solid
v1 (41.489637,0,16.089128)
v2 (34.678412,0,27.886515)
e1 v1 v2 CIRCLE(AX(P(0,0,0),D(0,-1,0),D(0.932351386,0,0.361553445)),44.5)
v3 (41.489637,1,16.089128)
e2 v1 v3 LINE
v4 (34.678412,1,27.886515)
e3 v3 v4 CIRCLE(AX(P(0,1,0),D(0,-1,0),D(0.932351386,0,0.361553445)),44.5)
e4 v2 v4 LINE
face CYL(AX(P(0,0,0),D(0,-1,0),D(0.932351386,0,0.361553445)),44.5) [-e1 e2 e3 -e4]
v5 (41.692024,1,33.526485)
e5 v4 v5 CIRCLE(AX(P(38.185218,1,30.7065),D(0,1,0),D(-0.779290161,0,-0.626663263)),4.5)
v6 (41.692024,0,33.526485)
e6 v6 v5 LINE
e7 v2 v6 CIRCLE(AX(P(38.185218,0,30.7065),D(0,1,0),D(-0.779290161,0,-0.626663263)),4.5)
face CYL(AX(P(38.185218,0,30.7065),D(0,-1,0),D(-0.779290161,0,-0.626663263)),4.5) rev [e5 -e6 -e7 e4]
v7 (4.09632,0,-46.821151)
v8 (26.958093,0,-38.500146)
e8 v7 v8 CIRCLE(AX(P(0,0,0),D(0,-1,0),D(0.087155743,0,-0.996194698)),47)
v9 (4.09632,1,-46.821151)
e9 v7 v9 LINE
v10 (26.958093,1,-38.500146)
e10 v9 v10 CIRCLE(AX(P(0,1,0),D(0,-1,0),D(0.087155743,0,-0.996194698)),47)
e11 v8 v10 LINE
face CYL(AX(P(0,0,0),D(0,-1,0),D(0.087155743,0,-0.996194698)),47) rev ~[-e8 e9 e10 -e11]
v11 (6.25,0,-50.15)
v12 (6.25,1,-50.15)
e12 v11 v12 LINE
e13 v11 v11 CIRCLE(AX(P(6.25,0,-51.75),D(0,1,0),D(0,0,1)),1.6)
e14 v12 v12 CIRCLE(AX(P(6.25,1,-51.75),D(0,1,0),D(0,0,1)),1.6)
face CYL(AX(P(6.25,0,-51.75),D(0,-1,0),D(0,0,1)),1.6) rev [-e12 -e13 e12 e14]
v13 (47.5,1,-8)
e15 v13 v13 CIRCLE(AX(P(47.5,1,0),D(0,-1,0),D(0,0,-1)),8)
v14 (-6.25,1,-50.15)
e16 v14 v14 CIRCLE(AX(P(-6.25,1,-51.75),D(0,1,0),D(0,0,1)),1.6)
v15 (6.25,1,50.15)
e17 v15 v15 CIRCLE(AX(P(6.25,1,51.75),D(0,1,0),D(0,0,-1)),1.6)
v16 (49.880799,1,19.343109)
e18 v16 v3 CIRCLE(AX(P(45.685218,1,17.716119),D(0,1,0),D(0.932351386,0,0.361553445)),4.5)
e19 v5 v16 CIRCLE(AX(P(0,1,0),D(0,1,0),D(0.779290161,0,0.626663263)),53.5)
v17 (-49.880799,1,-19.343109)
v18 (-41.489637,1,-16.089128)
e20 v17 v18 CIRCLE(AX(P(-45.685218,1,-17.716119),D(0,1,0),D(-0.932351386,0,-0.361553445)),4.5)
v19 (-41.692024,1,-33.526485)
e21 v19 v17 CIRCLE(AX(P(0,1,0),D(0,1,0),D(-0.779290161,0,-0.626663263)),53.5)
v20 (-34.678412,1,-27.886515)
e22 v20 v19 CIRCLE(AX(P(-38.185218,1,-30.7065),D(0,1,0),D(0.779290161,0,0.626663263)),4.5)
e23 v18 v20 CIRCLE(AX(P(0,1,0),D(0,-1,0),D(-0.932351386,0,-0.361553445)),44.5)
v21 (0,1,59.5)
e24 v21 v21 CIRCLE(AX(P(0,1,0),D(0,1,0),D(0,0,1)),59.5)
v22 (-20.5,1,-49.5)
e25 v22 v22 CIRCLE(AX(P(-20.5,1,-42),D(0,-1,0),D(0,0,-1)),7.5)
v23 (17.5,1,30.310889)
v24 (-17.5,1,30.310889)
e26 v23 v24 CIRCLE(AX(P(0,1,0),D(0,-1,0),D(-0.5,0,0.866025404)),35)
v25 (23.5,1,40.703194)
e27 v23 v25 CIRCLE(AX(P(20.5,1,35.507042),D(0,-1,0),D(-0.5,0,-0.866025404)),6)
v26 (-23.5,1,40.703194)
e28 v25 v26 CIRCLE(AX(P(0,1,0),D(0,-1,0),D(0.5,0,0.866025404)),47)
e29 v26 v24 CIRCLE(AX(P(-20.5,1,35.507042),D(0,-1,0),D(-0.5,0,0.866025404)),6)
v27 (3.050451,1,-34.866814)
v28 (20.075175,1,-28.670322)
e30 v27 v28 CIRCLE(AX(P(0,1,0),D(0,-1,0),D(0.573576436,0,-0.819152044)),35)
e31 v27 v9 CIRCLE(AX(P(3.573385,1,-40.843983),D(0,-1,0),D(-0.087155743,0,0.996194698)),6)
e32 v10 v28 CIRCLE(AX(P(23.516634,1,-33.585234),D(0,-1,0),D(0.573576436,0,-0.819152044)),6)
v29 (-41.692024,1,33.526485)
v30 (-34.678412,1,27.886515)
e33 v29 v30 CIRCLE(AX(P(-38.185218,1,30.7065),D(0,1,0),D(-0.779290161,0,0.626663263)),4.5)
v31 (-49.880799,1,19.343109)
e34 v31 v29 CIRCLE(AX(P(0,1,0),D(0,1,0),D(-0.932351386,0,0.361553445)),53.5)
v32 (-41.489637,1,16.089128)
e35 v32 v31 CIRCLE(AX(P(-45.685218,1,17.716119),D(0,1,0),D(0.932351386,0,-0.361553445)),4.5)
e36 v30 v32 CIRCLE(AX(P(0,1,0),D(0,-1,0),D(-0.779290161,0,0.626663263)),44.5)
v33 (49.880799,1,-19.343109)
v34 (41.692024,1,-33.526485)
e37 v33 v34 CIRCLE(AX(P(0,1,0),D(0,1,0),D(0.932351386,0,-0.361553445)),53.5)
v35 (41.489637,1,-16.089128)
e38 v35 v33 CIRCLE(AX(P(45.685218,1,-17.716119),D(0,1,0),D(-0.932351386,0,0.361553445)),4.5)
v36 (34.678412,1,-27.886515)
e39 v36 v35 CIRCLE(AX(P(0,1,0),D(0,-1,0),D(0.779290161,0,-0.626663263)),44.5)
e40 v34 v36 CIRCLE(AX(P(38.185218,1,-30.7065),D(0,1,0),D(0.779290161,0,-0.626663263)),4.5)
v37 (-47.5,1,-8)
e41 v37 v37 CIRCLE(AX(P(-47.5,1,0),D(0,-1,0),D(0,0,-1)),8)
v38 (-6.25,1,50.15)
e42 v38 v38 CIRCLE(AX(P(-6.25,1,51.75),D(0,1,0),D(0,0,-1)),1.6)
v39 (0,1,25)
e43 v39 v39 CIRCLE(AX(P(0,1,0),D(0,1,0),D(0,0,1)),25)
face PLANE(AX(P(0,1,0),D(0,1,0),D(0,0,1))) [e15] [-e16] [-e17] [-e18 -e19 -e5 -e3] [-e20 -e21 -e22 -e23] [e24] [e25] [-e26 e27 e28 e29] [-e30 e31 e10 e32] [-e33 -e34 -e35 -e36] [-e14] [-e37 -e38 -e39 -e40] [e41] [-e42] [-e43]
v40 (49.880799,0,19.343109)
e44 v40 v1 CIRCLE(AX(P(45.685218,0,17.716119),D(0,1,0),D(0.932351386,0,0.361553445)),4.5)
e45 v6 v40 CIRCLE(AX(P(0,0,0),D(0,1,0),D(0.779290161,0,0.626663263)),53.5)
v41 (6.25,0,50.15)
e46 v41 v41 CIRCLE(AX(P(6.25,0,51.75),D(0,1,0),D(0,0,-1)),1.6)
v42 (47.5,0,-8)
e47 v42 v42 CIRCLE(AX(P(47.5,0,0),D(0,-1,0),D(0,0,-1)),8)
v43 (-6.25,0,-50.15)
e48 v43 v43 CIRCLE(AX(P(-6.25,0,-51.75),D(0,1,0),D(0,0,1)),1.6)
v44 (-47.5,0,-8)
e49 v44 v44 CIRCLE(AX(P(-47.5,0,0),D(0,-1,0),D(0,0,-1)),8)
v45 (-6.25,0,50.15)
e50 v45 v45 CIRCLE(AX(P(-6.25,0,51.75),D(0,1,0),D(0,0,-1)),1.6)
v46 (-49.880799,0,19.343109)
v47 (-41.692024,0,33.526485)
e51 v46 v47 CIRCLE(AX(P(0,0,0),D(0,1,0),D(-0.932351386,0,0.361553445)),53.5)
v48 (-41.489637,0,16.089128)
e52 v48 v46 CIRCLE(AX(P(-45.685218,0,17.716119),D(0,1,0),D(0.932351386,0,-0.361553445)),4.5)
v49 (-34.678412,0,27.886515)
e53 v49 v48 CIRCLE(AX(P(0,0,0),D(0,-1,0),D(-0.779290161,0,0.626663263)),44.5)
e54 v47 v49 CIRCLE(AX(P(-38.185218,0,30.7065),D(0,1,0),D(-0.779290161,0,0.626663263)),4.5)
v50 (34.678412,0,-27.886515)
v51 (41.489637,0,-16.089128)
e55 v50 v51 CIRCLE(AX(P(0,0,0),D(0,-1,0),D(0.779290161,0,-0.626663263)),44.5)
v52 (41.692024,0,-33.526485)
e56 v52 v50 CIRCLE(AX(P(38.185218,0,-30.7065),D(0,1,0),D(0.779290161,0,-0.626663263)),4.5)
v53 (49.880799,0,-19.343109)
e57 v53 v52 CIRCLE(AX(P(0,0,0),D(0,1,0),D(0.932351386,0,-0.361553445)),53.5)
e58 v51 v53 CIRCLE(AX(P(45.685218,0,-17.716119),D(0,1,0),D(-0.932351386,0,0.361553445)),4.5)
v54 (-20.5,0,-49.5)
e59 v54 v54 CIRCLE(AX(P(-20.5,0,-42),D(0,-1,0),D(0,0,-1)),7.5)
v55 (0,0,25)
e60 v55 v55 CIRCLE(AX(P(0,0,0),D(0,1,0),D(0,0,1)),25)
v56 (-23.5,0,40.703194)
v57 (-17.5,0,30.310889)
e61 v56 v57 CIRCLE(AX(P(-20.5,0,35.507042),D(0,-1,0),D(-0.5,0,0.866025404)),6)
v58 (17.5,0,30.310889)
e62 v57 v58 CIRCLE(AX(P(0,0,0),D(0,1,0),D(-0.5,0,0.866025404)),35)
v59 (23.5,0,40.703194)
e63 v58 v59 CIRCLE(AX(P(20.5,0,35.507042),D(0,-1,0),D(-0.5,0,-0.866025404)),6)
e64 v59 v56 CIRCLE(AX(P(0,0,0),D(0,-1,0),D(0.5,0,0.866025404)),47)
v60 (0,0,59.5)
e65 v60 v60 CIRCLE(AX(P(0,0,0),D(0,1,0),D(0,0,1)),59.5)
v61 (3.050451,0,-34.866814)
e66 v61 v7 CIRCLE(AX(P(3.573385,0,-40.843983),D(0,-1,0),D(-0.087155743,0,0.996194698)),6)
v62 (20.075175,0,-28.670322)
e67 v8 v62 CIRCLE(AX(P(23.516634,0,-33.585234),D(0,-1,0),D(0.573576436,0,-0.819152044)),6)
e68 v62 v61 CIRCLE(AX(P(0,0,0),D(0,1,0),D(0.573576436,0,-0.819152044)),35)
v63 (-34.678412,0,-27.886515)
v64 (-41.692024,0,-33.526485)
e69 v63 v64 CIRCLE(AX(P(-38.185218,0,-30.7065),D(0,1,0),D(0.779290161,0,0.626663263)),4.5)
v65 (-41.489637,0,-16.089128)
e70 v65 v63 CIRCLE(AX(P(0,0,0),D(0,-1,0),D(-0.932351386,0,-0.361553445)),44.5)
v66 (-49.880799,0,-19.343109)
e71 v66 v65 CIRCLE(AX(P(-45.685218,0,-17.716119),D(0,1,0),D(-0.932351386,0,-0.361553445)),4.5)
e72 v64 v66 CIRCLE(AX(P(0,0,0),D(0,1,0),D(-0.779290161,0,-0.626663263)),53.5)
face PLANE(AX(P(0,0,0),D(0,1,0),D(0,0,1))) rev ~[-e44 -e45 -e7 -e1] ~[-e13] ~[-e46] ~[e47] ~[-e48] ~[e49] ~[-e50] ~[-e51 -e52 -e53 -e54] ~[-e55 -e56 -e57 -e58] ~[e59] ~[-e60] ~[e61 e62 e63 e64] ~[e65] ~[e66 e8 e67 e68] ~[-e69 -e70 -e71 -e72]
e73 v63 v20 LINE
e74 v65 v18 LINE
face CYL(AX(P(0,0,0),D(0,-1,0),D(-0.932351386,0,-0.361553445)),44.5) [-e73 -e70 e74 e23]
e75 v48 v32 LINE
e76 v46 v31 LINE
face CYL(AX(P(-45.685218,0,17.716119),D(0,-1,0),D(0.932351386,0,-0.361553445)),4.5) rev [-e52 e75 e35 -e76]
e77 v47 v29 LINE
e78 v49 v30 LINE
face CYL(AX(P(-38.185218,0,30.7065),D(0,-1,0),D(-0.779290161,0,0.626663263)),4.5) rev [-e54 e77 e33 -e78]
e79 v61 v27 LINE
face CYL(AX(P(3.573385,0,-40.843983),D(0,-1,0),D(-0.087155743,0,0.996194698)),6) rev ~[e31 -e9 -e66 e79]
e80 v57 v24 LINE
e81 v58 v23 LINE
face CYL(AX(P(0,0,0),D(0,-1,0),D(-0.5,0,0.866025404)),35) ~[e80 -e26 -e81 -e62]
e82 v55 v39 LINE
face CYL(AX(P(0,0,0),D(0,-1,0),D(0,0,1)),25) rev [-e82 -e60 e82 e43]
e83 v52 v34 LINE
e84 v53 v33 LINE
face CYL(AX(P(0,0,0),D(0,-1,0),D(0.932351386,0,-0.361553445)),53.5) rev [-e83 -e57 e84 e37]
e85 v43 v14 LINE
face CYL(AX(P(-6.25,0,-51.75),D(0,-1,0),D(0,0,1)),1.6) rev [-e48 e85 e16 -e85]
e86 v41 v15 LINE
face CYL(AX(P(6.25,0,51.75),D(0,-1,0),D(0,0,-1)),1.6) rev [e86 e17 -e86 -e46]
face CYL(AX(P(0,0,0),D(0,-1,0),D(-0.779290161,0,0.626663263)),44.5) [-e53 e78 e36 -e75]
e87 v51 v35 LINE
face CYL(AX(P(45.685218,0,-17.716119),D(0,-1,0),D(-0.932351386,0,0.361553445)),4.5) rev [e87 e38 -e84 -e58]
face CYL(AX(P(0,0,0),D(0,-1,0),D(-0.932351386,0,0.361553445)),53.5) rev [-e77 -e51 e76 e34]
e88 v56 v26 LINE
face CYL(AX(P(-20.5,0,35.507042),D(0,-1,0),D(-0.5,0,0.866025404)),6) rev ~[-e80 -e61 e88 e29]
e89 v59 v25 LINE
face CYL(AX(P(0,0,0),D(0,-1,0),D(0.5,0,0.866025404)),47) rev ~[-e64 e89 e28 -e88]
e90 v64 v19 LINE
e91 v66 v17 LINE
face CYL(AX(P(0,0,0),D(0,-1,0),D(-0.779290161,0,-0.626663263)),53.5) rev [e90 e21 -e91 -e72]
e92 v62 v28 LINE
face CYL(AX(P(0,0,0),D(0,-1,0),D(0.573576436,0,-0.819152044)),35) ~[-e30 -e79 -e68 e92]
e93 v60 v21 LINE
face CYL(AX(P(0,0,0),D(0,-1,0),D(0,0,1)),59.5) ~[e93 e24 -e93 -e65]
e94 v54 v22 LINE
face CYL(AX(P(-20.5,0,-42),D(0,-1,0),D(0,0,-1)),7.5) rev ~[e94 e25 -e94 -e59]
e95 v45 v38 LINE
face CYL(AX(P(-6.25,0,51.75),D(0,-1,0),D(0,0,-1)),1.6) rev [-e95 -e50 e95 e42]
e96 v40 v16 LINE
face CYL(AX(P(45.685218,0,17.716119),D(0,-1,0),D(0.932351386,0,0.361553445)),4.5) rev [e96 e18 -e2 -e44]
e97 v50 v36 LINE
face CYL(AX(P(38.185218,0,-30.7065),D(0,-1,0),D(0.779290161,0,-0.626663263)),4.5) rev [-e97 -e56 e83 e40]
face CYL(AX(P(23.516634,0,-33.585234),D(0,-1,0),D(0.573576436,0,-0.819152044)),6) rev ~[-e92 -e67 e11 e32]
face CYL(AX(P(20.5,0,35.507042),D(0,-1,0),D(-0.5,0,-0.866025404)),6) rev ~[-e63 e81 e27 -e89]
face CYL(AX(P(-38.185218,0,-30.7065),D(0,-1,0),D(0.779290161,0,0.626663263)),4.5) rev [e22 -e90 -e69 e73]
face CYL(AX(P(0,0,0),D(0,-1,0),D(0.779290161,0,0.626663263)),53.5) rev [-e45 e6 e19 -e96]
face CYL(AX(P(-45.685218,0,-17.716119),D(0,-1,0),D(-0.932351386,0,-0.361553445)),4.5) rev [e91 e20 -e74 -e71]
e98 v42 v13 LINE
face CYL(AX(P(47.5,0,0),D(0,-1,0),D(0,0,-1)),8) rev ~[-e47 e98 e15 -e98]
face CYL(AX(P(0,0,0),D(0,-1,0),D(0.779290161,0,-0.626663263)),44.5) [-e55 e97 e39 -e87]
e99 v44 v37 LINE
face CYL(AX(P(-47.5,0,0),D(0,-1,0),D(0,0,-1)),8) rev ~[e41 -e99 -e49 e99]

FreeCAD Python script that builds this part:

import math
import FreeCAD as App
import Part
import Sketcher
from FreeCAD import Vector

doc = App.newDocument("Part")
body = doc.addObject("PartDesign::Body", "Body")

# Sketch on XZ plane
sketch1 = doc.addObject("Sketcher::SketchObject", "Sketch")
body.addObject(sketch1)
sketch1.AttachmentSupport = (doc.XZ_Plane, [""])
sketch1.MapMode = "FlatFace"
sketch1.addGeometry(Part.Circle(Vector(0, 0, 0), Vector(0, 0, 1), 59.5), False)
sketch1.addGeometry(Part.ArcOfCircle(Part.Circle(Vector(0, 0, 0), Vector(0, 0, 1), 53.5), math.radians(-158.804371), math.radians(-141.195629)), False)
sketch1.addGeometry(Part.ArcOfCircle(Part.Circle(Vector(-38.185218, -30.7065, 0), Vector(0, 0, 1), 4.5), math.radians(-141.195629), math.radians(38.804371)), False)
sketch1.addGeometry(Part.ArcOfCircle(Part.Circle(Vector(0, 0, 0), Vector(0, 0, 1), 44.5), math.radians(-158.804371), math.radians(-141.195629)), False)
sketch1.addGeometry(Part.ArcOfCircle(Part.Circle(Vector(-45.685218, -17.716119, 0), Vector(0, 0, 1), 4.5), math.radians(21.195629), math.radians(201.195629)), False)
sketch1.addGeometry(Part.Circle(Vector(-6.25, -51.75, 0), Vector(0, 0, 1), 1.6), False)
sketch1.addGeometry(Part.ArcOfCircle(Part.Circle(Vector(0, 0, 0), Vector(0, 0, 1), 53.5), math.radians(141.195629), math.radians(158.804371)), False)
sketch1.addGeometry(Part.ArcOfCircle(Part.Circle(Vector(-45.685218, 17.716119, 0), Vector(0, 0, 1), 4.5), math.radians(158.804371), math.radians(338.804371)), False)
sketch1.addGeometry(Part.ArcOfCircle(Part.Circle(Vector(0, 0, 0), Vector(0, 0, 1), 44.5), math.radians(141.195629), math.radians(158.804371)), False)
sketch1.addGeometry(Part.ArcOfCircle(Part.Circle(Vector(-38.185218, 30.7065, 0), Vector(0, 0, 1), 4.5), math.radians(-38.804371), math.radians(141.195629)), False)
sketch1.addGeometry(Part.Circle(Vector(-6.25, 51.75, 0), Vector(0, 0, 1), 1.6), False)
sketch1.addGeometry(Part.Circle(Vector(6.25, -51.75, 0), Vector(0, 0, 1), 1.6), False)
sketch1.addGeometry(Part.ArcOfCircle(Part.Circle(Vector(0, 0, 0), Vector(0, 0, 1), 53.5), math.radians(-38.804371), math.radians(-21.195629)), False)
sketch1.addGeometry(Part.ArcOfCircle(Part.Circle(Vector(45.685218, -17.716119, 0), Vector(0, 0, 1), 4.5), math.radians(-21.195629), math.radians(158.804371)), False)
sketch1.addGeometry(Part.ArcOfCircle(Part.Circle(Vector(0, 0, 0), Vector(0, 0, 1), 44.5), math.radians(-38.804371), math.radians(-21.195629)), False)
sketch1.addGeometry(Part.ArcOfCircle(Part.Circle(Vector(38.185218, -30.7065, 0), Vector(0, 0, 1), 4.5), math.radians(141.195629), math.radians(321.195629)), False)
sketch1.addGeometry(Part.Circle(Vector(0, 0, 0), Vector(0, 0, 1), 25), False)
sketch1.addGeometry(Part.Circle(Vector(6.25, 51.75, 0), Vector(0, 0, 1), 1.6), False)
sketch1.addGeometry(Part.ArcOfCircle(Part.Circle(Vector(0, 0, 0), Vector(0, 0, 1), 53.5), math.radians(21.195629), math.radians(38.804371)), False)
sketch1.addGeometry(Part.ArcOfCircle(Part.Circle(Vector(38.185218, 30.7065, 0), Vector(0, 0, 1), 4.5), math.radians(38.804371), math.radians(218.804371)), False)
sketch1.addGeometry(Part.ArcOfCircle(Part.Circle(Vector(0, 0, 0), Vector(0, 0, 1), 44.5), math.radians(21.195629), math.radians(38.804371)), False)
sketch1.addGeometry(Part.ArcOfCircle(Part.Circle(Vector(45.685218, 17.716119, 0), Vector(0, 0, 1), 4.5), math.radians(-158.804371), math.radians(21.195629)), False)
sketch1.addConstraint(Sketcher.Constraint("Tangent", 1, 2, 2, 1))
sketch1.addConstraint(Sketcher.Constraint("Tangent", 2, 2, 3, 2))
sketch1.addConstraint(Sketcher.Constraint("Tangent", 3, 1, 4, 1))
sketch1.addConstraint(Sketcher.Constraint("Tangent", 4, 2, 1, 1))
sketch1.addConstraint(Sketcher.Constraint("Tangent", 6, 2, 7, 1))
sketch1.addConstraint(Sketcher.Constraint("Tangent", 7, 2, 8, 2))
sketch1.addConstraint(Sketcher.Constraint("Tangent", 8, 1, 9, 1))
sketch1.addConstraint(Sketcher.Constraint("Tangent", 9, 2, 6, 1))
sketch1.addConstraint(Sketcher.Constraint("Tangent", 12, 2, 13, 1))
sketch1.addConstraint(Sketcher.Constraint("Tangent", 13, 2, 14, 2))
sketch1.addConstraint(Sketcher.Constraint("Tangent", 14, 1, 15, 1))
sketch1.addConstraint(Sketcher.Constraint("Tangent", 15, 2, 12, 1))
sketch1.addConstraint(Sketcher.Constraint("Tangent", 18, 2, 19, 1))
sketch1.addConstraint(Sketcher.Constraint("Tangent", 19, 2, 20, 2))
sketch1.addConstraint(Sketcher.Constraint("Tangent", 20, 1, 21, 1))
sketch1.addConstraint(Sketcher.Constraint("Tangent", 21, 2, 18, 1))
sketch1.addConstraint(Sketcher.Constraint("Coincident", 0, 3, -1, 1))
sketch1.addConstraint(Sketcher.Constraint("Coincident", 1, 3, -1, 1))
sketch1.addConstraint(Sketcher.Constraint("Coincident", 3, 3, -1, 1))
sketch1.addConstraint(Sketcher.Constraint("Coincident", 6, 3, -1, 1))
sketch1.addConstraint(Sketcher.Constraint("Coincident", 8, 3, -1, 1))
sketch1.addConstraint(Sketcher.Constraint("Coincident", 12, 3, -1, 1))
sketch1.addConstraint(Sketcher.Constraint("Coincident", 14, 3, -1, 1))
sketch1.addConstraint(Sketcher.Constraint("Coincident", 16, 3, -1, 1))
sketch1.addConstraint(Sketcher.Constraint("Coincident", 18, 3, -1, 1))
sketch1.addConstraint(Sketcher.Constraint("Coincident", 20, 3, -1, 1))
sketch1.addConstraint(Sketcher.Constraint("Equal", 1, 6))
sketch1.addConstraint(Sketcher.Constraint("Equal", 4, 7))
sketch1.addConstraint(Sketcher.Constraint("Equal", 5, 10))
sketch1.addConstraint(Sketcher.Constraint("Equal", 10, 11))
sketch1.addConstraint(Sketcher.Constraint("Equal", 6, 12))
sketch1.addConstraint(Sketcher.Constraint("Equal", 9, 13))
sketch1.addConstraint(Sketcher.Constraint("Equal", 11, 17))
sketch1.addConstraint(Sketcher.Constraint("Equal", 12, 18))
sketch1.addConstraint(Sketcher.Constraint("Equal", 15, 19))
sketch1.addConstraint(Sketcher.Constraint("Symmetric", 10, 3, 11, 3, -1, 1))
sketch1.addConstraint(Sketcher.Constraint("Symmetric", 5, 3, 17, 3, -1, 1))
sketch1.addConstraint(Sketcher.Constraint("Symmetric", 5, 3, 11, 3, -2))
sketch1.addConstraint(Sketcher.Constraint("Horizontal", 4, 3, 13, 3))
sketch1.addConstraint(Sketcher.Constraint("Horizontal", 2, 3, 15, 3))
sketch1.addConstraint(Sketcher.Constraint("Horizontal", 9, 3, 19, 3))
sketch1.addConstraint(Sketcher.Constraint("Horizontal", 7, 3, 21, 3))
sketch1.addConstraint(Sketcher.Constraint("Vertical", 4, 3, 7, 3))
sketch1.addConstraint(Sketcher.Constraint("Vertical", 2, 3, 9, 3))
sketch1.addConstraint(Sketcher.Constraint("Diameter", 0, 119.0))
sketch1.addConstraint(Sketcher.Constraint("Diameter", 16, 50.0))
sketch1.addConstraint(Sketcher.Constraint("Diameter", 5, 3.2))
sketch1.addConstraint(Sketcher.Constraint("Radius", 1, 53.5))
sketch1.addConstraint(Sketcher.Constraint("Radius", 2, 4.5))
sketch1.addConstraint(Sketcher.Constraint("DistanceX", 4, 3, 2, 3, 7.5))
sketch1.addConstraint(Sketcher.Constraint("DistanceX", 5, 3, 11, 3, 12.5))
sketch1.addConstraint(Sketcher.Constraint("DistanceY", 5, 3, -1, 1, 51.75))
sketch1.addConstraint(Sketcher.Constraint("DistanceY", 2, 3, -1, 1, 30.7065))
pad1 = doc.addObject("PartDesign::Pad", "Pad")
body.addObject(pad1)
pad1.Profile = sketch1
pad1.Length = 1
pad1.Reversed = True

# Sketch on XZ plane
sketch2 = doc.addObject("Sketcher::SketchObject", "Sketch001")
body.addObject(sketch2)
sketch2.AttachmentSupport = (doc.XZ_Plane, [""])
sketch2.MapMode = "FlatFace"
sketch2.addGeometry(Part.Circle(Vector(47.5, 0, 0), Vector(0, 0, 1), 8), False)
sketch2.addGeometry(Part.Circle(Vector(-47.5, 0, 0), Vector(0, 0, 1), 8), False)
sketch2.addGeometry(Part.Circle(Vector(-20.5, -42, 0), Vector(0, 0, 1), 7.5), False)
sketch2.addGeometry(Part.ArcOfCircle(Part.Circle(Vector(0, 0, 0), Vector(0, 0, 1), 47), math.radians(-85), math.radians(-55)), False)
sketch2.addGeometry(Part.ArcOfCircle(Part.Circle(Vector(23.516634, -33.585234, 0), Vector(0, 0, 1), 6), math.radians(-55), math.radians(125)), False)
sketch2.addGeometry(Part.ArcOfCircle(Part.Circle(Vector(0, 0, 0), Vector(0, 0, 1), 35), math.radians(-85), math.radians(-55)), False)
sketch2.addGeometry(Part.ArcOfCircle(Part.Circle(Vector(3.573385, -40.843983, 0), Vector(0, 0, 1), 6), math.radians(95), math.radians(275)), False)
sketch2.addGeometry(Part.ArcOfCircle(Part.Circle(Vector(0, 0, 0), Vector(0, 0, 1), 47), math.radians(60), math.radians(120)), False)
sketch2.addGeometry(Part.ArcOfCircle(Part.Circle(Vector(-20.5, 35.507042, 0), Vector(0, 0, 1), 6), math.radians(120), math.radians(300)), False)
sketch2.addGeometry(Part.ArcOfCircle(Part.Circle(Vector(0, 0, 0), Vector(0, 0, 1), 35), math.radians(60), math.radians(120)), False)
sketch2.addGeometry(Part.ArcOfCircle(Part.Circle(Vector(20.5, 35.507042, 0), Vector(0, 0, 1), 6), math.radians(-120), math.radians(60)), False)
sketch2.addConstraint(Sketcher.Constraint("Tangent", 3, 2, 4, 1))
sketch2.addConstraint(Sketcher.Constraint("Tangent", 4, 2, 5, 2))
sketch2.addConstraint(Sketcher.Constraint("Tangent", 5, 1, 6, 1))
sketch2.addConstraint(Sketcher.Constraint("Tangent", 6, 2, 3, 1))
sketch2.addConstraint(Sketcher.Constraint("Tangent", 7, 2, 8, 1))
sketch2.addConstraint(Sketcher.Constraint("Tangent", 8, 2, 9, 2))
sketch2.addConstraint(Sketcher.Constraint("Tangent", 9, 1, 10, 1))
sketch2.addConstraint(Sketcher.Constraint("Tangent", 10, 2, 7, 1))
sketch2.addConstraint(Sketcher.Constraint("Coincident", 3, 3, -1, 1))
sketch2.addConstraint(Sketcher.Constraint("Coincident", 5, 3, -1, 1))
sketch2.addConstraint(Sketcher.Constraint("Coincident", 7, 3, -1, 1))
sketch2.addConstraint(Sketcher.Constraint("Coincident", 9, 3, -1, 1))
sketch2.addConstraint(Sketcher.Constraint("Equal", 0, 1))
sketch2.addConstraint(Sketcher.Constraint("Equal", 3, 7))
sketch2.addConstraint(Sketcher.Constraint("Equal", 6, 8))
sketch2.addConstraint(Sketcher.Constraint("Symmetric", 0, 3, 1, 3, -1, 1))
sketch2.addConstraint(Sketcher.Constraint("PointOnObject", 0, 3, -1))
sketch2.addConstraint(Sketcher.Constraint("Horizontal", 8, 3, 10, 3))
sketch2.addConstraint(Sketcher.Constraint("Vertical", 2, 3, 8, 3))
sketch2.addConstraint(Sketcher.Constraint("Diameter", 0, 16.0))
sketch2.addConstraint(Sketcher.Constraint("Diameter", 2, 15.0))
sketch2.addConstraint(Sketcher.Constraint("Radius", 3, 47.0))
sketch2.addConstraint(Sketcher.Constraint("Radius", 4, 6.0))
sketch2.addConstraint(Sketcher.Constraint("DistanceY", 2, 3, -1, 1, 42.0))
sketch2.addConstraint(Sketcher.Constraint("DistanceX", 1, 3, 0, 3, 95.0))
sketch2.addConstraint(Sketcher.Constraint("DistanceX", 1, 3, 2, 3, 27.0))
sketch2.addConstraint(Sketcher.Constraint("DistanceY", 4, 2, -1, 1, 28.670322))
sketch2.addConstraint(Sketcher.Constraint("DistanceX", -1, 1, 5, 1, 3.050451))
pocket1 = doc.addObject("PartDesign::Pocket", "Pocket")
body.addObject(pocket1)
pocket1.Profile = sketch2
pocket1.Length = 10

doc.recompute()
